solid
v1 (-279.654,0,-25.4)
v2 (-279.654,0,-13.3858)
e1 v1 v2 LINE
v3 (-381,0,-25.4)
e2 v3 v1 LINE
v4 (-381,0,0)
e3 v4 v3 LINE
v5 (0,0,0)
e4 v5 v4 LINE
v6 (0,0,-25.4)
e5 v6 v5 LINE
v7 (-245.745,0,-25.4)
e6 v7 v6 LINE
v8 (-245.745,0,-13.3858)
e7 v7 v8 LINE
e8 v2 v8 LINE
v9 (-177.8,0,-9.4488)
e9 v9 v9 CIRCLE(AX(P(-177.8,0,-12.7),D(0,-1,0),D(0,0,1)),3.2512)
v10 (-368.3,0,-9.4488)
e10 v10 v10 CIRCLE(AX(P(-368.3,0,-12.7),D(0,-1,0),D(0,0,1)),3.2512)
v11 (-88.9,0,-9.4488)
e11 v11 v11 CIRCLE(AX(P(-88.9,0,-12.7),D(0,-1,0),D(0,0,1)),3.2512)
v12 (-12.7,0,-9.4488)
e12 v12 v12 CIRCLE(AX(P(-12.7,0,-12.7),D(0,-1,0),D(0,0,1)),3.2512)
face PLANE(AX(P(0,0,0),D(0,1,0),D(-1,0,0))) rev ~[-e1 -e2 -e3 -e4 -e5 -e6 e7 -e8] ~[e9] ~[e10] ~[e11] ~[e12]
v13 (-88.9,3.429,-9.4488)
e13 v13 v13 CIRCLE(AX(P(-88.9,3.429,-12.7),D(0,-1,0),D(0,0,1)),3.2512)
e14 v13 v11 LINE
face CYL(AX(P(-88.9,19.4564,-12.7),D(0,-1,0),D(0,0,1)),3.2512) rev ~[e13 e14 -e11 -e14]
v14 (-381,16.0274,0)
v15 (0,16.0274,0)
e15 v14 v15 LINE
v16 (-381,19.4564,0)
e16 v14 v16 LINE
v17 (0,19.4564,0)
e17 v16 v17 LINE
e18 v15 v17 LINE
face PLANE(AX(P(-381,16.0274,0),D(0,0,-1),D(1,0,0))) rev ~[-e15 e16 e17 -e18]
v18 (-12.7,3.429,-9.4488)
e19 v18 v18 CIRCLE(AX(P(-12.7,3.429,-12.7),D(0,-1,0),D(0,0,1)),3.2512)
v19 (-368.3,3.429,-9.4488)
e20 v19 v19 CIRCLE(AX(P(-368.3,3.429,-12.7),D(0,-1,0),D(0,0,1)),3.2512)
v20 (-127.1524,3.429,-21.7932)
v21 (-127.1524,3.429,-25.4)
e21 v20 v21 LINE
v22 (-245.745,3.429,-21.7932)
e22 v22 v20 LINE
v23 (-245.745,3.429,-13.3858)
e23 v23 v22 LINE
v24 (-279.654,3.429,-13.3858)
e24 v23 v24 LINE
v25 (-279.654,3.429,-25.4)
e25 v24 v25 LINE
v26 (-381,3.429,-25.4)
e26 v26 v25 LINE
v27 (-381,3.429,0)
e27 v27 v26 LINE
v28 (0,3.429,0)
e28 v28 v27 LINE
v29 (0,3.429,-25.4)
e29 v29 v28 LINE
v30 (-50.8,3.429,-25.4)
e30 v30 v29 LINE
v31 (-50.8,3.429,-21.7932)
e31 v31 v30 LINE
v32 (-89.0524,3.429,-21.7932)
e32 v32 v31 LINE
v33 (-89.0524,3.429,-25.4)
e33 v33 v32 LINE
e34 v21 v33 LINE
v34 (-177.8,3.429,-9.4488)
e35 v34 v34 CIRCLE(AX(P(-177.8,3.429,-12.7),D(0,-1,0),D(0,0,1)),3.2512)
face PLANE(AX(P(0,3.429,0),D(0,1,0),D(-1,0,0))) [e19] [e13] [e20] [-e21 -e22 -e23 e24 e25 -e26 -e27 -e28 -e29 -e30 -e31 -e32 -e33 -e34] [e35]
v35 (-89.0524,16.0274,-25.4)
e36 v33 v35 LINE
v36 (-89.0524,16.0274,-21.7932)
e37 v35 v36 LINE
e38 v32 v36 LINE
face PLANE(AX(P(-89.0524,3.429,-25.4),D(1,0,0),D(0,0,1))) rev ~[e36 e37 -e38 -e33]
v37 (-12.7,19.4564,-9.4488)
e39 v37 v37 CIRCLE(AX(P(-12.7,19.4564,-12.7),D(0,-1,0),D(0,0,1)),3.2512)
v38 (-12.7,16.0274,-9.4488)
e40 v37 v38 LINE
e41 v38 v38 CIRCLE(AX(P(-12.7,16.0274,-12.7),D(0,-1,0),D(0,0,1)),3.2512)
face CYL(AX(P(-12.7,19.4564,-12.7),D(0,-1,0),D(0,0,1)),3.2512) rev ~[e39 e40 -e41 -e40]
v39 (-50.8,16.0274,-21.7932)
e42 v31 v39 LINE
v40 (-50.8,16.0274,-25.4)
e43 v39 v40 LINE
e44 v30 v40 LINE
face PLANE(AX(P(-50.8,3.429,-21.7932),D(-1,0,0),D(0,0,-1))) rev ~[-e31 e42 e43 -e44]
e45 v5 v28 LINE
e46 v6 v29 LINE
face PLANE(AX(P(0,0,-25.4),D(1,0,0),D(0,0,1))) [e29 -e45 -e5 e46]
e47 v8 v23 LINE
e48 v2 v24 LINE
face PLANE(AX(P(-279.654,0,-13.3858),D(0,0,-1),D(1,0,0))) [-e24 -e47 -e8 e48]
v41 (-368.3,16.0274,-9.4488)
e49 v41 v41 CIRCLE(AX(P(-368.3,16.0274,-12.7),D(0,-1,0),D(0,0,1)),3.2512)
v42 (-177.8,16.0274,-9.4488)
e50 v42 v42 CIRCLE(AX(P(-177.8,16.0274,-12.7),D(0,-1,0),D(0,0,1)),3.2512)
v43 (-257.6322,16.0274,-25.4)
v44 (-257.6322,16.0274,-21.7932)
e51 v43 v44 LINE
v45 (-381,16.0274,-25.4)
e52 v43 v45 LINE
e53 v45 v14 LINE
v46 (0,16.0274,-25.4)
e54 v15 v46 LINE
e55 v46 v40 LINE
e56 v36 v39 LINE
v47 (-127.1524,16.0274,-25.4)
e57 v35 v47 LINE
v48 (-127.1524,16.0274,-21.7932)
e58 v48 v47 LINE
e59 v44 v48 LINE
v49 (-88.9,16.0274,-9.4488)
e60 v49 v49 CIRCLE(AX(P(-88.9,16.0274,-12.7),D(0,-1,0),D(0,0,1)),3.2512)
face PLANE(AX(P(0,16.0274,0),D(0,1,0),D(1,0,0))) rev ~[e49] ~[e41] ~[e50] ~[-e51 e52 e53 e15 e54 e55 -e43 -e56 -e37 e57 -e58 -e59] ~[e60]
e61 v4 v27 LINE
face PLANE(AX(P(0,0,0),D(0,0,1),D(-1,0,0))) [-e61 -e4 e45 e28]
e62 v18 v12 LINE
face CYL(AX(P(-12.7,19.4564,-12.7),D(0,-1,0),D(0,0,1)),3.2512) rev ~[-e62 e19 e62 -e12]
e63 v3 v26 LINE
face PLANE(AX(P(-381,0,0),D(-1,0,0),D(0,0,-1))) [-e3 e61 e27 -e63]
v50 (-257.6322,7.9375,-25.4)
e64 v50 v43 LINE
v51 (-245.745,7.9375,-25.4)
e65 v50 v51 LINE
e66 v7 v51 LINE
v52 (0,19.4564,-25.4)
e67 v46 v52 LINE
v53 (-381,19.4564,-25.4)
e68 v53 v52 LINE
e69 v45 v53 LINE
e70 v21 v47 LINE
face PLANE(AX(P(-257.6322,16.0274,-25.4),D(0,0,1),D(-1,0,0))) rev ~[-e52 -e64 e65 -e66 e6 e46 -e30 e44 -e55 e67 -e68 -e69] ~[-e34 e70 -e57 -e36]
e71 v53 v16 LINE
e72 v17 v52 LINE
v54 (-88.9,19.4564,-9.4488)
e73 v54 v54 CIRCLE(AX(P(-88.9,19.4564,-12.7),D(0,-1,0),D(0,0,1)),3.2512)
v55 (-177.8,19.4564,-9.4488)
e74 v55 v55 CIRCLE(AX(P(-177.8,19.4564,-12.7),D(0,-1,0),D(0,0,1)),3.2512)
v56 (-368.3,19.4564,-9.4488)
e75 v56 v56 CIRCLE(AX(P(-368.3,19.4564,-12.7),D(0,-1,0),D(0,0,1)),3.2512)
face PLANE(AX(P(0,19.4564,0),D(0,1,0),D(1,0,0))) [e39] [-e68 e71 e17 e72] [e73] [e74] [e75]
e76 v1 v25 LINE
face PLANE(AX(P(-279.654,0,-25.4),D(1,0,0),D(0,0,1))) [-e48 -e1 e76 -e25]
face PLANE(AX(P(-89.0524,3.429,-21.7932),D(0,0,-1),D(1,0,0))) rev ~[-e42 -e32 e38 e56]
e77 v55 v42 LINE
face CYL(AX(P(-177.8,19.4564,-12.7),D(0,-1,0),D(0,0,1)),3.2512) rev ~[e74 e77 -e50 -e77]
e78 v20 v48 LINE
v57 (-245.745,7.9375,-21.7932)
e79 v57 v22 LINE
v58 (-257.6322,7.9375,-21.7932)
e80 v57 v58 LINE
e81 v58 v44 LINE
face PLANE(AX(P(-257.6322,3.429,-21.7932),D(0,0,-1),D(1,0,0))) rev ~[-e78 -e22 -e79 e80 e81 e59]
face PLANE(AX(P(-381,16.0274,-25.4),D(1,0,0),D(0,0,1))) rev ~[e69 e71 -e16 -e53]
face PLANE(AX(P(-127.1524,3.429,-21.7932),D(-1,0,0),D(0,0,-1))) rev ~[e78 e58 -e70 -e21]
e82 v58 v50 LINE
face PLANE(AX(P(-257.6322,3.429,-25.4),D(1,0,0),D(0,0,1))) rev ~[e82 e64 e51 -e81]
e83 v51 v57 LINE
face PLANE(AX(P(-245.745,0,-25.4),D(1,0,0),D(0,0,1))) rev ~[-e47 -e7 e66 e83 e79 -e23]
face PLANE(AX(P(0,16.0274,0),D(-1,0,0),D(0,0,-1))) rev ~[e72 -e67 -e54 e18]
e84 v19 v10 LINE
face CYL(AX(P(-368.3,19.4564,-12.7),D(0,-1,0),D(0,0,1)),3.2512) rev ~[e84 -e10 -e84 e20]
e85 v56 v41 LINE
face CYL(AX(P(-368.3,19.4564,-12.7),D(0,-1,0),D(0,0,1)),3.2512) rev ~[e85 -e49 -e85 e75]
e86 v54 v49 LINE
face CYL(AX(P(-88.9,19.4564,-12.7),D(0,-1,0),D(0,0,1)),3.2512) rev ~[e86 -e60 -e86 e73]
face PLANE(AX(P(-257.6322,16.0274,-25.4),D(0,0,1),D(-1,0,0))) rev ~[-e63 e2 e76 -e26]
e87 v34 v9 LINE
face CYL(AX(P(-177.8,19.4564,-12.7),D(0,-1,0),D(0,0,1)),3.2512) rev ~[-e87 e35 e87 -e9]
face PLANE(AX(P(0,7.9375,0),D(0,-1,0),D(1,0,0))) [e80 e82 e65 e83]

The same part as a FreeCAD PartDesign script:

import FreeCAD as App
import Part
import Sketcher
from FreeCAD import Vector
Q = App.Units.Quantity


def add_polygon(sketch, points):
    """Adds a closed chain of lines whose ends are joined by coincident constraints."""
    first, n = sketch.GeometryCount, len(points)
    for a, b in zip(points, points[1:] + points[:1]):
        sketch.addGeometry(Part.LineSegment(App.Vector(*a, 0), App.Vector(*b, 0)), False)
    for i in range(n):
        sketch.addConstraint(Sketcher.Constraint("Coincident", first + i, 2, first + (i + 1) % n, 1))

doc = App.newDocument("Part")
params = doc.addObject("Spreadsheet::Sheet", "Params")
for row, (alias, value) in enumerate([
    ("sketch1_width", "15 in"),
    ("sketch1_height", "1 in"),
    ("pad1_length", "0.135 in"),
    ("sketch2_width", "1.506 in"),
    ("sketch2_width2", "5.137 in"),
    ("sketch2_height", "0.142 in"),
    ("pad2_length", "0.496 in"),
    ("sketch3_width", "15 in"),
    ("sketch3_height", "1 in"),
    ("pad3_length", "0.135 in"),
    ("sketch4_diameter", "0.256 in"),
    ("hole_diameter", "0.256 in"),
    ("sketch5_diameter", "0.256 in"),
    ("hole2_diameter", "0.256 in"),
    ("sketch6_diameter", "0.256 in"),
    ("hole3_diameter", "0.256 in"),
    ("sketch7_diameter", "0.256 in"),
    ("hole4_diameter", "0.256 in"),
    ("sketch8_width", "1.335 in"),
    ("sketch8_height", "0.473 in"),
    ("pocket1_length", "0.3125 in"),
], start=1):
    params.set(f"A{row}", alias)
    params.set(f"B{row}", "=" + value)
    params.setAlias(f"B{row}", alias)

body = doc.addObject("PartDesign::Body", "Body")

# Sketch on XZ plane
sketch1 = body.newObject("Sketcher::SketchObject", "Sketch")
sketch1.AttachmentSupport = (doc.getObject("XZ_Plane"), [""])
sketch1.MapMode = "FlatFace"
add_polygon(sketch1, [(-381, 0), (0, 0), (0, -25.4), (-381, -25.4)])  # lines 0-3
sketch1.addConstraint(Sketcher.Constraint("Horizontal", 0))
sketch1.addConstraint(Sketcher.Constraint("Vertical", 1))
sketch1.addConstraint(Sketcher.Constraint("Horizontal", 2))
sketch1.addConstraint(Sketcher.Constraint("Vertical", 3))
sketch1.addConstraint(Sketcher.Constraint("Coincident", 0, 2, -1, 1))
sketch1.addConstraint(Sketcher.Constraint("DistanceX", 0, 1, 0, 2, Q("15 in")))
sketch1.addConstraint(Sketcher.Constraint("DistanceY", 1, 2, 1, 1, Q("1 in")))
sketch1.setExpression("Constraints[9]", "Params.sketch1_width")
sketch1.setExpression("Constraints[10]", "Params.sketch1_height")
pad1 = body.newObject("PartDesign::Pad", "Pad")
pad1.Profile = sketch1
pad1.setExpression("Length", "Params.pad1_length")
pad1.Reversed = True

# Sketch on XZ plane
sketch2 = body.newObject("Sketcher::SketchObject", "Sketch001")
sketch2.AttachmentSupport = (doc.getObject("XZ_Plane"), [""])
sketch2.MapMode = "FlatFace"
sketch2.AttachmentOffset = App.Placement(Vector(0, 0, -0.135 * 25.4), App.Rotation())
add_polygon(sketch2, [(-50.8, -21.7932), (-50.8, -25.4), (-89.0524, -25.4), (-89.0524, -21.7932)])  # lines 0-3
add_polygon(sketch2, [(-127.1524, -21.7932), (-127.1524, -25.4), (-257.6322, -25.4), (-257.6322, -21.7932)])  # lines 4-7
sketch2.addConstraint(Sketcher.Constraint("Vertical", 0))
sketch2.addConstraint(Sketcher.Constraint("Horizontal", 1))
sketch2.addConstraint(Sketcher.Constraint("Vertical", 2))
sketch2.addConstraint(Sketcher.Constraint("Horizontal", 3))
sketch2.addConstraint(Sketcher.Constraint("Vertical", 4))
sketch2.addConstraint(Sketcher.Constraint("Horizontal", 5))
sketch2.addConstraint(Sketcher.Constraint("Vertical", 6))
sketch2.addConstraint(Sketcher.Constraint("Horizontal", 7))
sketch2.addConstraint(Sketcher.Constraint("Horizontal", 1, 2, 4, 2))
sketch2.addConstraint(Sketcher.Constraint("Horizontal", 3, 2, 6, 2))
sketch2.addConstraint(Sketcher.Constraint("DistanceX", 0, 2, -1, 1, Q("2 in")))
sketch2.addConstraint(Sketcher.Constraint("DistanceX", 4, 2, 1, 2, Q("1.5 in")))
sketch2.addConstraint(Sketcher.Constraint("DistanceX", 1, 2, 1, 1, Q("1.506 in")))
sketch2.addConstraint(Sketcher.Constraint("DistanceX", 5, 2, 5, 1, Q("5.137 in")))
sketch2.addConstraint(Sketcher.Constraint("DistanceY", 0, 2, 0, 1, Q("0.142 in")))
sketch2.addConstraint(Sketcher.Constraint("DistanceY", 0, 2, -1, 1, Q("1 in")))
sketch2.setExpression("Constraints[20]", "Params.sketch2_width")
sketch2.setExpression("Constraints[21]", "Params.sketch2_width2")
sketch2.setExpression("Constraints[22]", "Params.sketch2_height")
pad2 = body.newObject("PartDesign::Pad", "Pad001")
pad2.Profile = sketch2
pad2.setExpression("Length", "Params.pad2_length")
pad2.Reversed = True

# Sketch on XZ plane
sketch3 = body.newObject("Sketcher::SketchObject", "Sketch002")
sketch3.AttachmentSupport = (doc.getObject("XZ_Plane"), [""])
sketch3.MapMode = "FlatFace"
sketch3.AttachmentOffset = App.Placement(Vector(0, 0, -0.631 * 25.4), App.Rotation())
add_polygon(sketch3, [(0, -25.4), (-381, -25.4), (-381, 0), (0, 0)])  # lines 0-3
sketch3.addConstraint(Sketcher.Constraint("Horizontal", 0))
sketch3.addConstraint(Sketcher.Constraint("Vertical", 1))
sketch3.addConstraint(Sketcher.Constraint("Horizontal", 2))
sketch3.addConstraint(Sketcher.Constraint("Vertical", 3))
sketch3.addConstraint(Sketcher.Constraint("Coincident", 2, 2, -1, 1))
sketch3.addConstraint(Sketcher.Constraint("DistanceX", 0, 2, 0, 1, Q("15 in")))
sketch3.addConstraint(Sketcher.Constraint("DistanceY", 1, 1, 1, 2, Q("1 in")))
sketch3.setExpression("Constraints[9]", "Params.sketch3_width")
sketch3.setExpression("Constraints[10]", "Params.sketch3_height")
pad3 = body.newObject("PartDesign::Pad", "Pad002")
pad3.Profile = sketch3
pad3.setExpression("Length", "Params.pad3_length")
pad3.Reversed = True

# Sketch on XZ plane
sketch4 = body.newObject("Sketcher::SketchObject", "Sketch003")
sketch4.AttachmentSupport = (doc.getObject("XZ_Plane"), [""])
sketch4.MapMode = "FlatFace"
sketch4.AttachmentOffset = App.Placement(Vector(0, 0, -0.766 * 25.4), App.Rotation())
sketch4.addGeometry(Part.Circle(Vector(-12.7, -12.7, 0), Vector(0, 0, 1), 3.2512), False)
sketch4.addConstraint(Sketcher.Constraint("Diameter", 0, Q("0.256 in")))
sketch4.addConstraint(Sketcher.Constraint("DistanceX", 0, 3, -1, 1, Q("0.5 in")))
sketch4.addConstraint(Sketcher.Constraint("DistanceY", 0, 3, -1, 1, Q("0.5 in")))
sketch4.setExpression("Constraints[0]", "Params.sketch4_diameter")
doc.recompute()
hole = body.newObject("PartDesign::Hole", "Hole")
hole.Profile = sketch4
hole.ThreadType = "None"
hole.setExpression("Diameter", "Params.hole_diameter")
hole.DepthType = "ThroughAll"
hole.Reversed = True

# Sketch on XZ plane
sketch5 = body.newObject("Sketcher::SketchObject", "Sketch004")
sketch5.AttachmentSupport = (doc.getObject("XZ_Plane"), [""])
sketch5.MapMode = "FlatFace"
sketch5.AttachmentOffset = App.Placement(Vector(0, 0, -0.766 * 25.4), App.Rotation())
sketch5.addGeometry(Part.Circle(Vector(-177.8, -12.7, 0), Vector(0, 0, 1), 3.2512), False)
sketch5.addConstraint(Sketcher.Constraint("Diameter", 0, Q("0.256 in")))
sketch5.addConstraint(Sketcher.Constraint("DistanceX", 0, 3, -1, 1, Q("7 in")))
sketch5.addConstraint(Sketcher.Constraint("DistanceY", 0, 3, -1, 1, Q("0.5 in")))
sketch5.setExpression("Constraints[0]", "Params.sketch5_diameter")
doc.recompute()
hole2 = body.newObject("PartDesign::Hole", "Hole001")
hole2.Profile = sketch5
hole2.ThreadType = "None"
hole2.setExpression("Diameter", "Params.hole2_diameter")
hole2.DepthType = "ThroughAll"
hole2.Reversed = True

# Sketch on XZ plane
sketch6 = body.newObject("Sketcher::SketchObject", "Sketch005")
sketch6.AttachmentSupport = (doc.getObject("XZ_Plane"), [""])
sketch6.MapMode = "FlatFace"
sketch6.AttachmentOffset = App.Placement(Vector(0, 0, -0.766 * 25.4), App.Rotation())
sketch6.addGeometry(Part.Circle(Vector(-368.3, -12.7, 0), Vector(0, 0, 1), 3.2512), False)
sketch6.addConstraint(Sketcher.Constraint("Diameter", 0, Q("0.256 in")))
sketch6.addConstraint(Sketcher.Constraint("DistanceX", 0, 3, -1, 1, Q("14.5 in")))
sketch6.addConstraint(Sketcher.Constraint("DistanceY", 0, 3, -1, 1, Q("0.5 in")))
sketch6.setExpression("Constraints[0]", "Params.sketch6_diameter")
doc.recompute()
hole3 = body.newObject("PartDesign::Hole", "Hole002")
hole3.Profile = sketch6
hole3.ThreadType = "None"
hole3.setExpression("Diameter", "Params.hole3_diameter")
hole3.DepthType = "ThroughAll"
hole3.Reversed = True

# Sketch on XZ plane
sketch7 = body.newObject("Sketcher::SketchObject", "Sketch006")
sketch7.AttachmentSupport = (doc.getObject("XZ_Plane"), [""])
sketch7.MapMode = "FlatFace"
sketch7.AttachmentOffset = App.Placement(Vector(0, 0, -0.766 * 25.4), App.Rotation())
sketch7.addGeometry(Part.Circle(Vector(-88.9, -12.7, 0), Vector(0, 0, 1), 3.2512), False)
sketch7.addConstraint(Sketcher.Constraint("Diameter", 0, Q("0.256 in")))
sketch7.addConstraint(Sketcher.Constraint("DistanceX", 0, 3, -1, 1, Q("3.5 in")))
sketch7.addConstraint(Sketcher.Constraint("DistanceY", 0, 3, -1, 1, Q("0.5 in")))
sketch7.setExpression("Constraints[0]", "Params.sketch7_diameter")
doc.recompute()
hole4 = body.newObject("PartDesign::Hole", "Hole003")
hole4.Profile = sketch7
hole4.ThreadType = "None"
hole4.setExpression("Diameter", "Params.hole4_diameter")
hole4.DepthType = "ThroughAll"
hole4.Reversed = True

# Sketch on XZ plane
sketch8 = body.newObject("Sketcher::SketchObject", "Sketch007")
sketch8.AttachmentSupport = (doc.getObject("XZ_Plane"), [""])
sketch8.MapMode = "FlatFace"
add_polygon(sketch8, [(-279.654, -13.3858), (-279.654, -25.4), (-245.745, -25.4), (-245.745, -13.3858)])  # lines 0-3
sketch8.addConstraint(Sketcher.Constraint("Vertical", 0))
sketch8.addConstraint(Sketcher.Constraint("Horizontal", 1))
sketch8.addConstraint(Sketcher.Constraint("Vertical", 2))
sketch8.addConstraint(Sketcher.Constraint("Horizontal", 3))
sketch8.addConstraint(Sketcher.Constraint("DistanceY", 0, 2, -1, 1, Q("1 in")))
sketch8.addConstraint(Sketcher.Constraint("DistanceX", 1, 1, 1, 2, Q("1.335 in")))
sketch8.addConstraint(Sketcher.Constraint("DistanceY", 0, 2, 0, 1, Q("0.473 in")))
sketch8.addConstraint(Sketcher.Constraint("DistanceX", 0, 2, -1, 1, Q("11.01 in")))
sketch8.setExpression("Constraints[9]", "Params.sketch8_width")
sketch8.setExpression("Constraints[10]", "Params.sketch8_height")
pocket1 = body.newObject("PartDesign::Pocket", "Pocket")
pocket1.Profile = sketch8
pocket1.setExpression("Length", "Params.pocket1_length")

doc.recompute()
